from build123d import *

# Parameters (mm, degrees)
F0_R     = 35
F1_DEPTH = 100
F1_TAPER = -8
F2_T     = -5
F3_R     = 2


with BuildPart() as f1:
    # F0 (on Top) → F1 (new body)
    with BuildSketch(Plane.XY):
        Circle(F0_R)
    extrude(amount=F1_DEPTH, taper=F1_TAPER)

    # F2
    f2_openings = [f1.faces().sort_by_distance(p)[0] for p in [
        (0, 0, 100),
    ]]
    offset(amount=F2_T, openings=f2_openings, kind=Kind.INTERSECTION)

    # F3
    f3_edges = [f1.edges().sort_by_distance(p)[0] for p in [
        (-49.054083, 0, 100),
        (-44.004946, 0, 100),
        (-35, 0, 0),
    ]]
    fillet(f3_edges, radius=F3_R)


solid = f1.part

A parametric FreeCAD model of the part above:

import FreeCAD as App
import Part
import Sketcher
from FreeCAD import Vector


def edges_at(feature, points):
    """Names of the edges that pass closest to the given points."""
    edges = feature.Shape.Edges
    near = lambda p: min(range(len(edges)), key=lambda i: edges[i].distToShape(Part.Vertex(*p))[0])
    return sorted({f"Edge{near(p) + 1}" for p in points})


def faces_at(feature, points):
    """Names of the faces that lie closest to the given points."""
    faces = feature.Shape.Faces
    near = lambda p: min(range(len(faces)), key=lambda i: faces[i].distToShape(Part.Vertex(*p))[0])
    return sorted({f"Face{near(p) + 1}" for p in points})

doc = App.newDocument("Part")
body = doc.addObject("PartDesign::Body", "Body")

sketch1 = body.newObject("Sketcher::SketchObject", "Sketch")
sketch1.AttachmentSupport = (doc.getObject("XY_Plane"), [""])
sketch1.MapMode = "FlatFace"
sketch1.addGeometry(Part.Circle(Vector(0, 0, 0), Vector(0, 0, 1), 35), False)
sketch1.addConstraint([
    Sketcher.Constraint("Coincident", 0, 3, -1, 1),
    Sketcher.Constraint("Diameter", 0, 70.0),
])
pad1 = body.newObject("PartDesign::Pad", "Pad")
pad1.Profile = sketch1
pad1.Length = 100
pad1.TaperAngle = 8
doc.recompute()

thickness = body.newObject("PartDesign::Thickness", "Thickness")
thickness.Base = (pad1, faces_at(pad1, [(0, 0, 100)]))
thickness.Value = 5
thickness.Reversed = True
thickness.Join = "Intersection"
doc.recompute()

fillet = body.newObject("PartDesign::Fillet", "Fillet")
fillet.Base = (thickness, edges_at(thickness, [(-49.054, 0, 100), (-44.005, 0, 100), (-35, 0, 0)]))
fillet.Radius = 2

doc.recompute()
